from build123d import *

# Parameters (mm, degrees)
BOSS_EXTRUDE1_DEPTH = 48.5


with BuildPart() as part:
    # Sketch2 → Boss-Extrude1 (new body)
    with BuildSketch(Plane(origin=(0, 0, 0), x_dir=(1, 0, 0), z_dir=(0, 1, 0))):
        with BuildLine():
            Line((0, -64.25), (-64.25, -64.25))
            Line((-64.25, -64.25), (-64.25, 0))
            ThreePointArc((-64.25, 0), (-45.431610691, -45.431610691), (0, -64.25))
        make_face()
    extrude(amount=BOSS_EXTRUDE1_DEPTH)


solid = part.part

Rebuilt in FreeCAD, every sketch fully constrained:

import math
import FreeCAD as App
import Part
import Sketcher

doc = App.newDocument("Part")
params = doc.addObject("Spreadsheet::Sheet", "Params")
for row, (alias, value) in enumerate([
    ("sketch1_radius", "64.25 mm"),
    ("pad1_length", "48.5 mm"),
], start=1):
    params.set(f"A{row}", alias)
    params.set(f"B{row}", "=" + value)
    params.setAlias(f"B{row}", alias)

body = doc.addObject("PartDesign::Body", "Body")

# Sketch on XZ plane
sketch1 = doc.addObject("Sketcher::SketchObject", "Sketch")
body.addObject(sketch1)
sketch1.AttachmentSupport = (doc.XZ_Plane, [""])
sketch1.MapMode = "FlatFace"
sketch1.addGeometry(Part.LineSegment(App.Vector(-64, 64, 0), App.Vector(0, 64, 0)), False)
sketch1.addGeometry(Part.ArcOfCircle(Part.Circle(App.Vector(0, 0, 0), App.Vector(0, 0, 1), 64), math.radians(90), math.radians(180)), False)
sketch1.addGeometry(Part.LineSegment(App.Vector(-64, 0, 0), App.Vector(-64, 64, 0)), False)
sketch1.addConstraint(Sketcher.Constraint("Tangent", 0, 2, 1, 1))
sketch1.addConstraint(Sketcher.Constraint("Tangent", 1, 2, 2, 1))
sketch1.addConstraint(Sketcher.Constraint("Coincident", 2, 2, 0, 1))
sketch1.addConstraint(Sketcher.Constraint("Horizontal", 0))
sketch1.addConstraint(Sketcher.Constraint("Vertical", 2))
sketch1.addConstraint(Sketcher.Constraint("Coincident", 1, 3, -1, 1))
sketch1.addConstraint(Sketcher.Constraint("Radius", 1, 64.25))
sketch1.setExpression("Constraints[6]", "Params.sketch1_radius")
pad1 = doc.addObject("PartDesign::Pad", "Pad")
body.addObject(pad1)
pad1.Profile = sketch1
pad1.setExpression("Length", "Params.pad1_length")
pad1.Reversed = True

doc.recompute()
